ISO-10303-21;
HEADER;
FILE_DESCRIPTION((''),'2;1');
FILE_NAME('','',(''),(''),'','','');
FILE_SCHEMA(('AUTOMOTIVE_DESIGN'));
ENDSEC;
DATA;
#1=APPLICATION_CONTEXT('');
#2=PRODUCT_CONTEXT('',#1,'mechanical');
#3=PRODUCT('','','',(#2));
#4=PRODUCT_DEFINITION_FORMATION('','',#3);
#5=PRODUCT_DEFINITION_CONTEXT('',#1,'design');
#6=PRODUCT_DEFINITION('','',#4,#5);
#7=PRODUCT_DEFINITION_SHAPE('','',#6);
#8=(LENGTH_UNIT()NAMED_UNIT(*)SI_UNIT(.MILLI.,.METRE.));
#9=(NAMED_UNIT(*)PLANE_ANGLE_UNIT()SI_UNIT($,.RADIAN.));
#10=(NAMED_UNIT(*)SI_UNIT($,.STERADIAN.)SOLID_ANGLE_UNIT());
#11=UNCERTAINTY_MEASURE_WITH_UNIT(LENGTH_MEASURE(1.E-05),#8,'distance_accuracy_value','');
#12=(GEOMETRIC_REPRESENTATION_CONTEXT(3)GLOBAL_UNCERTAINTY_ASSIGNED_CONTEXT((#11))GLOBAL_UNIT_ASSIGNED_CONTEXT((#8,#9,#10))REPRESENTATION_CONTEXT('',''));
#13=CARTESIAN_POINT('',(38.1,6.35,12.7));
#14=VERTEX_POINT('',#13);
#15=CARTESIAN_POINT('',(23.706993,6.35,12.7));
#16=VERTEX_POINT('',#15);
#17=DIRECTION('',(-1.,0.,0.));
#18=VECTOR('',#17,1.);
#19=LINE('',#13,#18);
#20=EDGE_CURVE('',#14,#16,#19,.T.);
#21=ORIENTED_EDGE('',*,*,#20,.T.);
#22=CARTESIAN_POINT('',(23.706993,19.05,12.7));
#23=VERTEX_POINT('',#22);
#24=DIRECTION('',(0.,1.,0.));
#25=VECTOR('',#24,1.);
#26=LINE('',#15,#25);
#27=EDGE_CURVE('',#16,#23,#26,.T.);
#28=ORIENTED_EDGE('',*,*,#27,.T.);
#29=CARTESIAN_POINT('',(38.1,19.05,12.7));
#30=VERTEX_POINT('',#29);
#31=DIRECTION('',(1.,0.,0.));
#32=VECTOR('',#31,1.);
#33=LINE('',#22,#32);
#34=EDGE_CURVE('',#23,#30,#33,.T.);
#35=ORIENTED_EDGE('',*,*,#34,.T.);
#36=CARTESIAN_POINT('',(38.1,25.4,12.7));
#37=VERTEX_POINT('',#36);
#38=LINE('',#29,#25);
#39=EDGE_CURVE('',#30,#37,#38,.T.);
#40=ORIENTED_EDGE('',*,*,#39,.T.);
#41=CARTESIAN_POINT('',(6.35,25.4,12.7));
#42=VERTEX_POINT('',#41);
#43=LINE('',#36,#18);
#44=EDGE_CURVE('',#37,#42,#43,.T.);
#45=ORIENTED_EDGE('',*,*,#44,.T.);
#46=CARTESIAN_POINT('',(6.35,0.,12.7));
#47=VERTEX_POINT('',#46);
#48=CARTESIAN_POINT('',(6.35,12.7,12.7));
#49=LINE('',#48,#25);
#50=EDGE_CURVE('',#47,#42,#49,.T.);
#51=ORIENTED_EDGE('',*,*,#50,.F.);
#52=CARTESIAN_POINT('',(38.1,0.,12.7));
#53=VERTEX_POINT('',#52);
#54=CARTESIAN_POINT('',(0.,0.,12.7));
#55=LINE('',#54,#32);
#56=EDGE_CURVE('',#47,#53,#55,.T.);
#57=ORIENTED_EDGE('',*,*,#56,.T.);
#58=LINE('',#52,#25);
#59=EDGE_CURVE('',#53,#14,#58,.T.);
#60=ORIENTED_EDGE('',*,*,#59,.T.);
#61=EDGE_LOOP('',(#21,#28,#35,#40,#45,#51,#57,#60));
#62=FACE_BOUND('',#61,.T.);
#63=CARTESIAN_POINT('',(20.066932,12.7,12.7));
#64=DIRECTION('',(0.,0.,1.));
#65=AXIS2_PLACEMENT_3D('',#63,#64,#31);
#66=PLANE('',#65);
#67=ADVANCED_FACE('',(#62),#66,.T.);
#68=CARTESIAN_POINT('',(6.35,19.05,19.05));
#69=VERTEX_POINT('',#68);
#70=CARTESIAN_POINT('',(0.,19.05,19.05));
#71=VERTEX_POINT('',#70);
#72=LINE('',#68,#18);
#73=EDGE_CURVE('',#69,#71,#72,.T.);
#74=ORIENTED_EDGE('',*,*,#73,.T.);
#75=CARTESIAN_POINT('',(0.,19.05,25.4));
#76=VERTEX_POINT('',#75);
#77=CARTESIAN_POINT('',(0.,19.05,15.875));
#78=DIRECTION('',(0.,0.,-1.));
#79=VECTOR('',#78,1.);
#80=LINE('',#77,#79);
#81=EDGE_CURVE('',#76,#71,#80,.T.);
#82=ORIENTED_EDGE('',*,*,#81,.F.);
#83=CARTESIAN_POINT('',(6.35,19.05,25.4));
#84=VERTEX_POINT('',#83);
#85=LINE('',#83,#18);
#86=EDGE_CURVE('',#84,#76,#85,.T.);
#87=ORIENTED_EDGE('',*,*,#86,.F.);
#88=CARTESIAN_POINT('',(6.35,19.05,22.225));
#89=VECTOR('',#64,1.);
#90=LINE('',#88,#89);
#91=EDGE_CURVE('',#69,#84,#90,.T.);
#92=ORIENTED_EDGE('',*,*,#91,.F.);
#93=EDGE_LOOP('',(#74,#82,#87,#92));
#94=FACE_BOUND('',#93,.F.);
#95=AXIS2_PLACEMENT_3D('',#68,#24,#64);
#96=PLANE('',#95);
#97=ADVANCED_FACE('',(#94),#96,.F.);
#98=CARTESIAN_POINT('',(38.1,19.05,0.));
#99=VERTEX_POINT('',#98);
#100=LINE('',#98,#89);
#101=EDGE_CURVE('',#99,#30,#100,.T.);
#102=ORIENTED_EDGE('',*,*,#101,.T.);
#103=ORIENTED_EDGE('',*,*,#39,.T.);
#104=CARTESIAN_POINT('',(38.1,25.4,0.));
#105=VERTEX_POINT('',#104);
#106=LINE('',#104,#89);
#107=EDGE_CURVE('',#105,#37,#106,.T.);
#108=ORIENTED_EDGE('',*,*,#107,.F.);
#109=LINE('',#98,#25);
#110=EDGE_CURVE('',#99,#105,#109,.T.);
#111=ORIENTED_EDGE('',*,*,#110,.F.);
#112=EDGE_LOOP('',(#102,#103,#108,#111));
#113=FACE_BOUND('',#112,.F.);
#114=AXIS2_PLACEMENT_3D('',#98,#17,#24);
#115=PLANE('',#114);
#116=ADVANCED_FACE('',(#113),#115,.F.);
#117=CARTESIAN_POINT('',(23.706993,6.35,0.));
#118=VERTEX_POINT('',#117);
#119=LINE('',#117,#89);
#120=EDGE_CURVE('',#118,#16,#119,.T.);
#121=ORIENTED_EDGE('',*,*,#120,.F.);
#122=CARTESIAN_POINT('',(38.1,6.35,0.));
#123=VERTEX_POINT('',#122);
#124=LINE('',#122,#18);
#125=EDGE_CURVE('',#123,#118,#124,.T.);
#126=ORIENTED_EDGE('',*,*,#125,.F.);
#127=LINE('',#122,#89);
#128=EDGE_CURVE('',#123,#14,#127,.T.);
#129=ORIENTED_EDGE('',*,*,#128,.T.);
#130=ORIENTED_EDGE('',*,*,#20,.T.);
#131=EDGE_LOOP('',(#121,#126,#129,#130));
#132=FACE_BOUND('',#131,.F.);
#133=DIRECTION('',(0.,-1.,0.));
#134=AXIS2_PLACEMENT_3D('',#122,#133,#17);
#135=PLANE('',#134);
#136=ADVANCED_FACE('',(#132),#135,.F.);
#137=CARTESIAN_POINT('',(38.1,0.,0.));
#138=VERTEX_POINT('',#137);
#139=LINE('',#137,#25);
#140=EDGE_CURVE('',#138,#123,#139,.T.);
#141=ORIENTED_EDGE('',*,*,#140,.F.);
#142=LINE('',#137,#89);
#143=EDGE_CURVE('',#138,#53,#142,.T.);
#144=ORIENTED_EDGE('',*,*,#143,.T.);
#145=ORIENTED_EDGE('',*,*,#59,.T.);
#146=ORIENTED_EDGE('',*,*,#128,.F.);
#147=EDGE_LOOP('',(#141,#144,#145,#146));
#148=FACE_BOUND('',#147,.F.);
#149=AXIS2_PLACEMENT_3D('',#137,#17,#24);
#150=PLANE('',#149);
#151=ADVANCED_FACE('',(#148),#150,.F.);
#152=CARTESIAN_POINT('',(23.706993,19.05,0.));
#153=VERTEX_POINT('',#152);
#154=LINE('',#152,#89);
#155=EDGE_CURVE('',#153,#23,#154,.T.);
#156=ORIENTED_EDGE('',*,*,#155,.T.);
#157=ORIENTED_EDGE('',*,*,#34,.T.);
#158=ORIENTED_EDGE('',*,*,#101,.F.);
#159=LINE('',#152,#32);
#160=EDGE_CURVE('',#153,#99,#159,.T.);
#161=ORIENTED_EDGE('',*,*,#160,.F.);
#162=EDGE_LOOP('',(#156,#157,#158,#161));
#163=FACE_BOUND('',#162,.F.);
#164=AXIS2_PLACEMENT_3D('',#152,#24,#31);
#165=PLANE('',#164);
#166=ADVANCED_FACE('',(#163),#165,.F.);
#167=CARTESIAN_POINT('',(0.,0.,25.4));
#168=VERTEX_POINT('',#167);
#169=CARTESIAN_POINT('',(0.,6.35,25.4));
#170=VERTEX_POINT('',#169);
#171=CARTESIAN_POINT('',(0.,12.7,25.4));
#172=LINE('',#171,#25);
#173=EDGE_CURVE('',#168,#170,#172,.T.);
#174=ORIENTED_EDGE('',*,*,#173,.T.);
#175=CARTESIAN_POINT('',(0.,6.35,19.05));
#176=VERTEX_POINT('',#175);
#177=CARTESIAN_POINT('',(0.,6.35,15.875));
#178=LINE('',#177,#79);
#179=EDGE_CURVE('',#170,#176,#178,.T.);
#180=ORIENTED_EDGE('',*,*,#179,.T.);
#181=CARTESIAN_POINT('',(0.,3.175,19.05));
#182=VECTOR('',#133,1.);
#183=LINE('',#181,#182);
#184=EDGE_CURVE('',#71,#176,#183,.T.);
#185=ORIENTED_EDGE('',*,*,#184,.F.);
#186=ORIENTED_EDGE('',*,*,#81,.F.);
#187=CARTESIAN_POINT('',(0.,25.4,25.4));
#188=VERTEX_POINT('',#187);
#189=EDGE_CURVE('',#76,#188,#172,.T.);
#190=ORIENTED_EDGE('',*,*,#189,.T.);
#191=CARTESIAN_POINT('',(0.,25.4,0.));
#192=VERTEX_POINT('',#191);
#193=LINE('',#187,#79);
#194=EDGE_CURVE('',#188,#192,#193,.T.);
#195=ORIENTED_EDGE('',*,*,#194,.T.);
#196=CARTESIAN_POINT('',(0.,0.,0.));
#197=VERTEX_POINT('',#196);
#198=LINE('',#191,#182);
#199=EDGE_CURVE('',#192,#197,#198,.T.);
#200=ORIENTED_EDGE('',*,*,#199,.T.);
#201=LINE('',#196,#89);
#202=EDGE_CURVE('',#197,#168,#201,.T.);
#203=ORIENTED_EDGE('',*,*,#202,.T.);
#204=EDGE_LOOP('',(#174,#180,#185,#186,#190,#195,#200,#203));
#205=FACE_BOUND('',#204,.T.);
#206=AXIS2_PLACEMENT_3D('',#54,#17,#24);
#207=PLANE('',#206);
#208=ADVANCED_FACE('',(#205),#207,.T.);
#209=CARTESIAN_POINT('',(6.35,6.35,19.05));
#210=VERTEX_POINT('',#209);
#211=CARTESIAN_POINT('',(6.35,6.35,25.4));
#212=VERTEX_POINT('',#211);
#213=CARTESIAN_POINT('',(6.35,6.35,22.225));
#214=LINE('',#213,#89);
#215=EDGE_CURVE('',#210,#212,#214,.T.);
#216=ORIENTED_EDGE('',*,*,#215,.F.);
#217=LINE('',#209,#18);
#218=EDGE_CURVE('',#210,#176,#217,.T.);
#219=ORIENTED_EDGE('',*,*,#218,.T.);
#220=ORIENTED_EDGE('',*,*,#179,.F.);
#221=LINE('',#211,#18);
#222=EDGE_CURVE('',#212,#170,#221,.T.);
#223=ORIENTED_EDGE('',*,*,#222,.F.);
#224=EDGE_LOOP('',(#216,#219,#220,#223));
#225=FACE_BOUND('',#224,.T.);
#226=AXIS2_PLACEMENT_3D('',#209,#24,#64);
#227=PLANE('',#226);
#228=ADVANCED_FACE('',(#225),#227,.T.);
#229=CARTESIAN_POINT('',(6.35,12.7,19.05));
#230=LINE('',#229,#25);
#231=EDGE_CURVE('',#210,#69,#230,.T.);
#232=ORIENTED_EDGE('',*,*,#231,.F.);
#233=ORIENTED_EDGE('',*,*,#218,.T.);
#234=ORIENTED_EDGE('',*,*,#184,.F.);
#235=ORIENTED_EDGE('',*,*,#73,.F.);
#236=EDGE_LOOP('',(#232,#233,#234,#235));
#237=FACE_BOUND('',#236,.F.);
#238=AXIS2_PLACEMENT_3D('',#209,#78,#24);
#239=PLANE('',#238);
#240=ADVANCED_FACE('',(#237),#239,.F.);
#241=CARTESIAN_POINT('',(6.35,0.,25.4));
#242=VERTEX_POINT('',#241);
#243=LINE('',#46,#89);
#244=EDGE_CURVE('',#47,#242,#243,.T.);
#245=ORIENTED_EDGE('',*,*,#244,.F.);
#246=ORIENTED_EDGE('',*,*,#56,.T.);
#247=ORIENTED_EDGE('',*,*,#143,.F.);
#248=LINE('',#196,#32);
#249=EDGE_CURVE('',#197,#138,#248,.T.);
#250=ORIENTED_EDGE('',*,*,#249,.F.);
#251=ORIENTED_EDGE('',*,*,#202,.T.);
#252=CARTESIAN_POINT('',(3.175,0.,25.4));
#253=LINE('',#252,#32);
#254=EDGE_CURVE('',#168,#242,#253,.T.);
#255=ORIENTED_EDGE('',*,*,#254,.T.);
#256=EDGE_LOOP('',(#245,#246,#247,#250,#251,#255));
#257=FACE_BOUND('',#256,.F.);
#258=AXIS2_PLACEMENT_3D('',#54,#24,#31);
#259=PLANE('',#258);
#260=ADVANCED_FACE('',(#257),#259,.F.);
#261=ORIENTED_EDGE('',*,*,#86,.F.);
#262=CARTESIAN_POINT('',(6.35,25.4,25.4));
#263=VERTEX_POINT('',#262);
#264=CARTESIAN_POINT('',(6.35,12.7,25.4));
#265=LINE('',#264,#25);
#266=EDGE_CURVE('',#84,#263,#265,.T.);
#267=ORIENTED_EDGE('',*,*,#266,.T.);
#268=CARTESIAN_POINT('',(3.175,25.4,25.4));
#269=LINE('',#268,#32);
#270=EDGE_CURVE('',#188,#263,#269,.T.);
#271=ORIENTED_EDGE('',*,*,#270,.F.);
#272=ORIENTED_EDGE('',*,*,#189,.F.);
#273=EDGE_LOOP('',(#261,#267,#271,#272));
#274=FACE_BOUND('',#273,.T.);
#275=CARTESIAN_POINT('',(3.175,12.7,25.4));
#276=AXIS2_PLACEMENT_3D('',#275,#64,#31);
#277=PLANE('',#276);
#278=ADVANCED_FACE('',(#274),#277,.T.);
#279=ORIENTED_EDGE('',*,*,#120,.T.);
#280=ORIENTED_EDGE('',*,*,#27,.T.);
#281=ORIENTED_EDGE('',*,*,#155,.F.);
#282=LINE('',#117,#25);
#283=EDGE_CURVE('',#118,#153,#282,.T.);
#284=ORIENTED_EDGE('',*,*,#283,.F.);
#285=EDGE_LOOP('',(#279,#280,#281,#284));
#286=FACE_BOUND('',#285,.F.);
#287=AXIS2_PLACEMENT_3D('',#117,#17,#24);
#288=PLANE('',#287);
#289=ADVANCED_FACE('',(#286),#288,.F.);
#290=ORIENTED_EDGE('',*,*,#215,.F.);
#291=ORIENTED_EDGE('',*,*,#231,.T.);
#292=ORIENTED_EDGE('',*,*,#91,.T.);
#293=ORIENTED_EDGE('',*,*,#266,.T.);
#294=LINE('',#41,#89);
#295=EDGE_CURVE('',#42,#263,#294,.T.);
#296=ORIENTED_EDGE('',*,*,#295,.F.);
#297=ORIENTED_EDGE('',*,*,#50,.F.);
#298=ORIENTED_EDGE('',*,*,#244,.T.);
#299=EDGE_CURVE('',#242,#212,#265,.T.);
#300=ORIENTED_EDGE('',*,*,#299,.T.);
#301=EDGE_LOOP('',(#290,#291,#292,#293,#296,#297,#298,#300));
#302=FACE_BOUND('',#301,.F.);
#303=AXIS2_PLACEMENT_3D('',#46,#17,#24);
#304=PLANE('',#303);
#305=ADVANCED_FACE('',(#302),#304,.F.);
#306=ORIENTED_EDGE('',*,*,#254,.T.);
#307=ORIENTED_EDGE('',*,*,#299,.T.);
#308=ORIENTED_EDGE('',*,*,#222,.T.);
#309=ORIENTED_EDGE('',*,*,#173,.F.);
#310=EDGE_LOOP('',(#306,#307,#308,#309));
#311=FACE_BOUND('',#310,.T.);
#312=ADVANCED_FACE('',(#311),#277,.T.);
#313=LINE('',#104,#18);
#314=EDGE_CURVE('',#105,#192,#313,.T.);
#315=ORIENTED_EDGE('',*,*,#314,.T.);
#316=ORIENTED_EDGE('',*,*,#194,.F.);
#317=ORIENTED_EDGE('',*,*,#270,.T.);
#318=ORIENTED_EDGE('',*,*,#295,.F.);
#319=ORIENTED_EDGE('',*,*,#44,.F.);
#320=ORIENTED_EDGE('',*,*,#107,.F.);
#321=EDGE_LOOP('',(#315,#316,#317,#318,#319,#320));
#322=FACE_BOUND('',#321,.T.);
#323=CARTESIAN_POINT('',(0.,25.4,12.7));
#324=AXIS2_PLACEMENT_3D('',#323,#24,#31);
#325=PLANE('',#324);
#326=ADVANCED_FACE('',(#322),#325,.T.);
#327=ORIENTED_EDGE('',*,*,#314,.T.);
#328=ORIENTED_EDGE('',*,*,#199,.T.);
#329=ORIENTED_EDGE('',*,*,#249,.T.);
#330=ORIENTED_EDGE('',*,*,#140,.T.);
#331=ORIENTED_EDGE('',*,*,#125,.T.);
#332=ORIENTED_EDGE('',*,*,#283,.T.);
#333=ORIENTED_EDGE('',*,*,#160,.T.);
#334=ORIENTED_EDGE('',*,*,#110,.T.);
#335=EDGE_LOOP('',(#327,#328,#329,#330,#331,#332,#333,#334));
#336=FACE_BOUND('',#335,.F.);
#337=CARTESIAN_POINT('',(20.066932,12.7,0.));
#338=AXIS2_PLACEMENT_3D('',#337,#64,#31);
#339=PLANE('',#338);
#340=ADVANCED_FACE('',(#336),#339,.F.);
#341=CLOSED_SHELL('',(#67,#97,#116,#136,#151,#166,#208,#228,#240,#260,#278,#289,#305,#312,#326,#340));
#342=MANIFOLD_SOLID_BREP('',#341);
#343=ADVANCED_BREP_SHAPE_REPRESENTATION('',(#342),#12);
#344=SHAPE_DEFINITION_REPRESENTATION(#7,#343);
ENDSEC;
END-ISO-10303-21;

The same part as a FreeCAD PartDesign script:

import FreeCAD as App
import Part
import Sketcher
Q = App.Units.Quantity


def add_polygon(sketch, points):
    """Adds a closed chain of lines whose ends are joined by coincident constraints."""
    first, n = sketch.GeometryCount, len(points)
    for a, b in zip(points, points[1:] + points[:1]):
        sketch.addGeometry(Part.LineSegment(App.Vector(*a, 0), App.Vector(*b, 0)), False)
    for i in range(n):
        sketch.addConstraint(Sketcher.Constraint("Coincident", first + i, 2, first + (i + 1) % n, 1))

doc = App.newDocument("Part")
params = doc.addObject("Spreadsheet::Sheet", "Params")
for row, (alias, value) in enumerate([
    ("sketch1_height", "1 in"),
    ("sketch1_width", "1.5 in"),
    ("sketch1_height2", "0.5 in"),
    ("pad1_length", "0.5 in"),
    ("sketch2_height", "1 in"),
    ("sketch2_width", "0.25 in"),
    ("pad2_length", "0.5 in"),
    ("sketch3_width", "0.5 in"),
    ("sketch3_height", "0.25 in"),
    ("pocket1_length", "1 in"),
], start=1):
    params.set(f"A{row}", alias)
    params.set(f"B{row}", "=" + value)
    params.setAlias(f"B{row}", alias)

body = doc.addObject("PartDesign::Body", "Body")

sketch1 = body.newObject("Sketcher::SketchObject", "Sketch")
sketch1.AttachmentSupport = (doc.getObject("XY_Plane"), [""])
sketch1.MapMode = "FlatFace"
add_polygon(sketch1, [(0, 25), (0, 0), (38, 0), (38, 6), (24, 6), (24, 19), (38, 19), (38, 25)])
sketch1.addConstraint(Sketcher.Constraint("Vertical", 0))
sketch1.addConstraint(Sketcher.Constraint("Horizontal", 1))
sketch1.addConstraint(Sketcher.Constraint("Vertical", 2))
sketch1.addConstraint(Sketcher.Constraint("Horizontal", 3))
sketch1.addConstraint(Sketcher.Constraint("Vertical", 4))
sketch1.addConstraint(Sketcher.Constraint("Horizontal", 5))
sketch1.addConstraint(Sketcher.Constraint("Vertical", 6))
sketch1.addConstraint(Sketcher.Constraint("Horizontal", 7))
sketch1.addConstraint(Sketcher.Constraint("Coincident", 0, 2, -1, 1))
sketch1.addConstraint(Sketcher.Constraint("Vertical", 2, 2, 5, 2))
sketch1.addConstraint(Sketcher.Constraint("Equal", 2, 6))
sketch1.addConstraint(Sketcher.Constraint("DistanceY", 0, 2, 0, 1, Q("1 in")))
sketch1.addConstraint(Sketcher.Constraint("DistanceX", 1, 1, 1, 2, Q("1.5 in")))
sketch1.addConstraint(Sketcher.Constraint("DistanceY", 4, 1, 4, 2, Q("0.5 in")))
sketch1.addConstraint(Sketcher.Constraint("DistanceX", 3, 2, 3, 1, 14.393007))
sketch1.setExpression("Constraints[19]", "Params.sketch1_height")
sketch1.setExpression("Constraints[20]", "Params.sketch1_width")
sketch1.setExpression("Constraints[21]", "Params.sketch1_height2")
pad1 = body.newObject("PartDesign::Pad", "Pad")
pad1.Profile = sketch1
pad1.setExpression("Length", "Params.pad1_length")

sketch2 = body.newObject("Sketcher::SketchObject", "Sketch001")
sketch2.AttachmentSupport = (doc.getObject("XY_Plane"), [""])
sketch2.MapMode = "FlatFace"
sketch2.AttachmentOffset = App.Placement(App.Vector(0, 0, 0.5 * 25.4), App.Rotation())
add_polygon(sketch2, [(0, 25), (0, 0), (6, 0), (6, 25)])
sketch2.addConstraint(Sketcher.Constraint("Vertical", 0))
sketch2.addConstraint(Sketcher.Constraint("Horizontal", 1))
sketch2.addConstraint(Sketcher.Constraint("Vertical", 2))
sketch2.addConstraint(Sketcher.Constraint("Horizontal", 3))
sketch2.addConstraint(Sketcher.Constraint("Coincident", 0, 2, -1, 1))
sketch2.addConstraint(Sketcher.Constraint("DistanceY", 0, 2, 0, 1, Q("1 in")))
sketch2.addConstraint(Sketcher.Constraint("DistanceX", 1, 1, 1, 2, Q("0.25 in")))
sketch2.setExpression("Constraints[9]", "Params.sketch2_height")
sketch2.setExpression("Constraints[10]", "Params.sketch2_width")
pad2 = body.newObject("PartDesign::Pad", "Pad001")
pad2.Profile = sketch2
pad2.setExpression("Length", "Params.pad2_length")

sketch3 = body.newObject("Sketcher::SketchObject", "Sketch002")
sketch3.AttachmentSupport = (doc.getObject("YZ_Plane"), [""])
sketch3.MapMode = "FlatFace"
sketch3.AttachmentOffset = App.Placement(App.Vector(0, 0, 0.25 * 25.4), App.Rotation())
add_polygon(sketch3, [(6, 25), (6, 19), (19, 19), (19, 25)])
sketch3.addConstraint(Sketcher.Constraint("Vertical", 0))
sketch3.addConstraint(Sketcher.Constraint("Horizontal", 1))
sketch3.addConstraint(Sketcher.Constraint("Vertical", 2))
sketch3.addConstraint(Sketcher.Constraint("Horizontal", 3))
sketch3.addConstraint(Sketcher.Constraint("DistanceX", 1, 1, 1, 2, Q("0.5 in")))
sketch3.addConstraint(Sketcher.Constraint("DistanceY", -1, 1, 2, 2, Q("1 in")))
sketch3.addConstraint(Sketcher.Constraint("DistanceY", 0, 2, 0, 1, Q("0.25 in")))
sketch3.addConstraint(Sketcher.Constraint("DistanceX", -1, 1, 0, 2, Q("0.25 in")))
sketch3.setExpression("Constraints[8]", "Params.sketch3_width")
sketch3.setExpression("Constraints[10]", "Params.sketch3_height")
pocket1 = body.newObject("PartDesign::Pocket", "Pocket")
pocket1.Profile = sketch3
pocket1.setExpression("Length", "Params.pocket1_length")

doc.recompute()
